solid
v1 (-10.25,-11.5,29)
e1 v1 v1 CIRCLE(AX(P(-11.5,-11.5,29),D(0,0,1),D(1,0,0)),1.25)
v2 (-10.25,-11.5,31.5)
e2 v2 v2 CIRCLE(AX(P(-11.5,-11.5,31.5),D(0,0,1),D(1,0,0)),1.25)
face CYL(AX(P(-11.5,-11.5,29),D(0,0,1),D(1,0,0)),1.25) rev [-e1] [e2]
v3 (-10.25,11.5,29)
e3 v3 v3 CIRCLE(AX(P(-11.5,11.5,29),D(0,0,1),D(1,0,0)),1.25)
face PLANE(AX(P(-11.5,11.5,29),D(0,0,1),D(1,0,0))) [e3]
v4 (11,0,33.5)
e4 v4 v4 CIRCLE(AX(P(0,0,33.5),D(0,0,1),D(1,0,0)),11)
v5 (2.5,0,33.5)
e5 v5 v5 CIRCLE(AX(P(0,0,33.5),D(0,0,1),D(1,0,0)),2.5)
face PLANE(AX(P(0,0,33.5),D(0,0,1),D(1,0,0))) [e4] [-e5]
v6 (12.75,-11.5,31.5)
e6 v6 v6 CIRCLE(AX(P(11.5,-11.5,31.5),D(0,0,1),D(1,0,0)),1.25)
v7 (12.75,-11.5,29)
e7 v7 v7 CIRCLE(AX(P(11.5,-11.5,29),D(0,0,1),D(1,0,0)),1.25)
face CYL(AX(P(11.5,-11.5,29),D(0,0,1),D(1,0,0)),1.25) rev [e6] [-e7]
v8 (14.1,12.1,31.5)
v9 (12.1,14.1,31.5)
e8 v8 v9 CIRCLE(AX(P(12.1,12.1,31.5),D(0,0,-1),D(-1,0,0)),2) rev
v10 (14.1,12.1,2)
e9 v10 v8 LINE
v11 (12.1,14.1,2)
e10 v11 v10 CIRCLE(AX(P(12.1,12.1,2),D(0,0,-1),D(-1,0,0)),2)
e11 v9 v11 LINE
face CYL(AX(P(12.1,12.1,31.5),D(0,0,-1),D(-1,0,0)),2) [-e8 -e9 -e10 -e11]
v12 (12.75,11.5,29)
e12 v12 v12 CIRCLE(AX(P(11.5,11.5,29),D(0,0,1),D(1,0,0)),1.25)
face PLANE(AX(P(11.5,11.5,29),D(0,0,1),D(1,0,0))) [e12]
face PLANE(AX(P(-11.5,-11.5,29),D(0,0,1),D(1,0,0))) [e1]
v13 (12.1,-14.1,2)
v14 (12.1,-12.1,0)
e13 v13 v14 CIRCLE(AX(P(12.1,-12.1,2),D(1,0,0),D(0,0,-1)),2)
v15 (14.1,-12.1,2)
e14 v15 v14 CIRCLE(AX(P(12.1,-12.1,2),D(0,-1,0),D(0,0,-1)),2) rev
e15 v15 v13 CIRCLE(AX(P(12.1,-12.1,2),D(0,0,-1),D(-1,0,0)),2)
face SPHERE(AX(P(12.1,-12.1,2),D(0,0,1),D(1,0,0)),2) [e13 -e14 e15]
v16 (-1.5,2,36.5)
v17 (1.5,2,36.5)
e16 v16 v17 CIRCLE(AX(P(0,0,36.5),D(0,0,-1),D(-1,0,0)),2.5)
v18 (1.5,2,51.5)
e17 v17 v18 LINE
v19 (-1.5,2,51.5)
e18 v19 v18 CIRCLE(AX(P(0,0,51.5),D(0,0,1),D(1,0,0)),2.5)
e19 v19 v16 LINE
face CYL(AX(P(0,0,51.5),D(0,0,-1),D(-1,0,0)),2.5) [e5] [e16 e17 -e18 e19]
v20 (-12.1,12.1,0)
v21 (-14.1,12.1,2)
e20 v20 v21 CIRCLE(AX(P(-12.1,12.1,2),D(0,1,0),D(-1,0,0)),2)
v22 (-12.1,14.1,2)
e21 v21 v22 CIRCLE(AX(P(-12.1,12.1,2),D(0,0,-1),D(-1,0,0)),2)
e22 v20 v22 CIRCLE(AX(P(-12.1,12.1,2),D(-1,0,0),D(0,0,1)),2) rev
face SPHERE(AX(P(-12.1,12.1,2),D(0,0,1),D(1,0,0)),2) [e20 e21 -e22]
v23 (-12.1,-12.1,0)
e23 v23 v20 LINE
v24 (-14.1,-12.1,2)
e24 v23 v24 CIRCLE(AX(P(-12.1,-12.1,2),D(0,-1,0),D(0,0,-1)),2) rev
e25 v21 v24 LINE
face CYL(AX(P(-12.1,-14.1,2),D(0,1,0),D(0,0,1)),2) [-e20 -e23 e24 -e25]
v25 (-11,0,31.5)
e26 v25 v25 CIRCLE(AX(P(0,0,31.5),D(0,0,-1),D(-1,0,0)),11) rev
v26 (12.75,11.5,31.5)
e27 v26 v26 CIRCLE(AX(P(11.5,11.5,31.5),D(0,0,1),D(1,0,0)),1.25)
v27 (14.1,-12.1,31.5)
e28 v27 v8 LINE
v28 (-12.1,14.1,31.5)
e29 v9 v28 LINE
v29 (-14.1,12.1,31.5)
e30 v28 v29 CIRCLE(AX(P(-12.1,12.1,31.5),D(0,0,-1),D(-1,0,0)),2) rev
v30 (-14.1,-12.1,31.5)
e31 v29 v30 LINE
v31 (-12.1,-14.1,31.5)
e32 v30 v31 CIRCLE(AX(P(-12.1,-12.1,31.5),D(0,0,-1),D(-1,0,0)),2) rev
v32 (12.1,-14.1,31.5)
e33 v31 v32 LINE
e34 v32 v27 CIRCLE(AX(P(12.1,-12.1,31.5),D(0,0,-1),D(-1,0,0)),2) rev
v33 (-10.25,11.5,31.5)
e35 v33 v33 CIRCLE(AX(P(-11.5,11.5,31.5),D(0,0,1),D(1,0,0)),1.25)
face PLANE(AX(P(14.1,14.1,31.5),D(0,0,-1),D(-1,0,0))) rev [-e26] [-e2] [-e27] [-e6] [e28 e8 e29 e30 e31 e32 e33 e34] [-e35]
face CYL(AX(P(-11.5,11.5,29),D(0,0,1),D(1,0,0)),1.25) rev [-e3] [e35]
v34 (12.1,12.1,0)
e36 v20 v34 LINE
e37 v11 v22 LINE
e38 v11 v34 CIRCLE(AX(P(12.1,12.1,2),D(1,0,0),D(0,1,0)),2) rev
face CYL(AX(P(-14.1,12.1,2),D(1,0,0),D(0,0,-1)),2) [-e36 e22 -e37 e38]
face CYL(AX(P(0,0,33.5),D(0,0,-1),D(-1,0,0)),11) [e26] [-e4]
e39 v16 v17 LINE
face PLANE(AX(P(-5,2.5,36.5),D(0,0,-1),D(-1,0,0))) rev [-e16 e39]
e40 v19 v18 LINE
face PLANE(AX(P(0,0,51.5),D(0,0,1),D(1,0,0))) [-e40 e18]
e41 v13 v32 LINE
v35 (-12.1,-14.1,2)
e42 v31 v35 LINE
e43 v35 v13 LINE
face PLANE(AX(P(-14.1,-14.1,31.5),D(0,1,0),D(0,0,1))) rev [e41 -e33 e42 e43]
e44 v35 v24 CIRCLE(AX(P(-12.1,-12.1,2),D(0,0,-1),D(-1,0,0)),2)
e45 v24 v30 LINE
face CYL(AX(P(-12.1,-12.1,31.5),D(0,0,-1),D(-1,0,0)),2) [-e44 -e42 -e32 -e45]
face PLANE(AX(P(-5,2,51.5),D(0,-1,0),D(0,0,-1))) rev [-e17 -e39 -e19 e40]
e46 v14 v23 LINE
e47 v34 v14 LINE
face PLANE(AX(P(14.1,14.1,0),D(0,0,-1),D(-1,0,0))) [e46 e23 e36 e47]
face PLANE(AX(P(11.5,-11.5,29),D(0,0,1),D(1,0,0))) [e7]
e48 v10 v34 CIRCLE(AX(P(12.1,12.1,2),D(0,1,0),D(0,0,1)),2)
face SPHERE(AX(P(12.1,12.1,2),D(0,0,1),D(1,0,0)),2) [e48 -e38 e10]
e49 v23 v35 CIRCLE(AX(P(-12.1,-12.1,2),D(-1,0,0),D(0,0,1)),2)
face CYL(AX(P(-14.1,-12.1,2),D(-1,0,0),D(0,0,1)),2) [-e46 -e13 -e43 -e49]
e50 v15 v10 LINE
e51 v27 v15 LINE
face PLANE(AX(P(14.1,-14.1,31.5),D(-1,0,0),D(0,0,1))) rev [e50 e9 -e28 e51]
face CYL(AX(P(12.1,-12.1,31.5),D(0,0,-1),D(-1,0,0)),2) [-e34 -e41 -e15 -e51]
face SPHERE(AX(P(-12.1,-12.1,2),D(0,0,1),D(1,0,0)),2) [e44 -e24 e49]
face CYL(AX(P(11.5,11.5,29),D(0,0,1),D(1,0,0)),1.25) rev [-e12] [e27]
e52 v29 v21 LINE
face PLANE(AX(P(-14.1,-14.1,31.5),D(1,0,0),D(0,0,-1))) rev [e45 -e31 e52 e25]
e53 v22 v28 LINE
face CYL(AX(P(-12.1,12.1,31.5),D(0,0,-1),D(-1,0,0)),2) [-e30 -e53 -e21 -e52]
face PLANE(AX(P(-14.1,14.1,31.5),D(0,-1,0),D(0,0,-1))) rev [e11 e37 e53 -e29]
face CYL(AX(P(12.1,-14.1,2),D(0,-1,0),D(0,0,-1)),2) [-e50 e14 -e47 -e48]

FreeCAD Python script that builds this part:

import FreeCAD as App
import Part
import Sketcher

V = App.Vector
Q = App.Units.Quantity


def edges_at(feature, points):
    """Names of the edges that pass closest to the given points."""
    edges = feature.Shape.Edges
    near = lambda p: min(range(len(edges)), key=lambda i: edges[i].distToShape(Part.Vertex(*p))[0])
    return sorted({f"Edge{near(p) + 1}" for p in points})


def add_polygon(sketch, points):
    """Adds a closed chain of lines whose ends are joined by coincident constraints."""
    first, n = sketch.GeometryCount, len(points)
    for a, b in zip(points, points[1:] + points[:1]):
        sketch.addGeometry(Part.LineSegment(App.Vector(*a, 0), App.Vector(*b, 0)), False)
    for i in range(n):
        sketch.addConstraint(Sketcher.Constraint("Coincident", first + i, 2, first + (i + 1) % n, 1))

doc = App.newDocument("Part")
body = doc.addObject("PartDesign::Body", "Body")

# Sketch on XY plane
sketch1 = body.newObject("Sketcher::SketchObject", "Sketch")
sketch1.AttachmentSupport = (doc.getObject("XY_Plane"), [""])
sketch1.MapMode = "FlatFace"
add_polygon(sketch1, [(-14.1, 14.1), (-14.1, -14.1), (14.1, -14.1), (14.1, 14.1)])  # lines 0-3
sketch1.addConstraint(Sketcher.Constraint("Vertical", 0))
sketch1.addConstraint(Sketcher.Constraint("Horizontal", 1))
sketch1.addConstraint(Sketcher.Constraint("Vertical", 2))
sketch1.addConstraint(Sketcher.Constraint("Horizontal", 3))
sketch1.addConstraint(Sketcher.Constraint("Symmetric", 0, 2, 2, 2, -1, 1))
sketch1.addConstraint(Sketcher.Constraint("Equal", 3, 0))
sketch1.addConstraint(Sketcher.Constraint("DistanceX", 1, 1, 1, 2, Q("28.2 mm")))
pad1 = body.newObject("PartDesign::Pad", "Pad")
pad1.Profile = sketch1
pad1.Length = 31.5

# Sketch on XY plane
sketch2 = body.newObject("Sketcher::SketchObject", "Sketch001")
sketch2.AttachmentSupport = (doc.getObject("XY_Plane"), [""])
sketch2.MapMode = "FlatFace"
sketch2.AttachmentOffset = App.Placement(V(0, 0, 31.5), App.Rotation())
sketch2.addGeometry(Part.Circle(V(0, 0, 0), V(0, 0, 1), 11), False)
sketch2.addConstraint(Sketcher.Constraint("Coincident", 0, 3, -1, 1))
sketch2.addConstraint(Sketcher.Constraint("Diameter", 0, Q("22 mm")))
pad2 = body.newObject("PartDesign::Pad", "Pad001")
pad2.Profile = sketch2
pad2.Length = 2

# Sketch on XY plane
sketch3 = body.newObject("Sketcher::SketchObject", "Sketch002")
sketch3.AttachmentSupport = (doc.getObject("XY_Plane"), [""])
sketch3.MapMode = "FlatFace"
sketch3.AttachmentOffset = App.Placement(V(0, 0, 33.5), App.Rotation())
sketch3.addGeometry(Part.Circle(V(0, 0, 0), V(0, 0, 1), 2.5), False)
sketch3.addConstraint(Sketcher.Constraint("Coincident", 0, 3, -1, 1))
sketch3.addConstraint(Sketcher.Constraint("Diameter", 0, Q("5 mm")))
pad3 = body.newObject("PartDesign::Pad", "Pad002")
pad3.Profile = sketch3
pad3.Length = 18

# Sketch on YZ plane
sketch4 = body.newObject("Sketcher::SketchObject", "Sketch003")
sketch4.AttachmentSupport = (doc.getObject("YZ_Plane"), [""])
sketch4.MapMode = "FlatFace"
add_polygon(sketch4, [(2.5, 51.5), (2, 51.5), (2, 36.5), (2.5, 36.5)])  # lines 0-3
sketch4.addConstraint(Sketcher.Constraint("Horizontal", 0))
sketch4.addConstraint(Sketcher.Constraint("Vertical", 1))
sketch4.addConstraint(Sketcher.Constraint("Horizontal", 2))
sketch4.addConstraint(Sketcher.Constraint("Vertical", 3))
sketch4.addConstraint(Sketcher.Constraint("DistanceY", 1, 2, 1, 1, Q("15 mm")))
sketch4.addConstraint(Sketcher.Constraint("DistanceX", 0, 2, 0, 1, Q("0.5 mm")))
sketch4.addConstraint(Sketcher.Constraint("DistanceX", -1, 1, 0, 2, Q("2 mm")))
sketch4.addConstraint(Sketcher.Constraint("DistanceY", -1, 1, 0, 2, Q("51.5 mm")))
pocket1 = body.newObject("PartDesign::Pocket", "Pocket")
pocket1.Profile = sketch4
pocket1.Length = 10
pocket1.Midplane = True

# Sketch on XY plane
sketch5 = body.newObject("Sketcher::SketchObject", "Sketch004")
sketch5.AttachmentSupport = (doc.getObject("XY_Plane"), [""])
sketch5.MapMode = "FlatFace"
sketch5.AttachmentOffset = App.Placement(V(0, 0, 31.5), App.Rotation())
sketch5.addGeometry(Part.Circle(V(-11.5, 11.5, 0), V(0, 0, 1), 1.25), False)
sketch5.addGeometry(Part.Circle(V(11.5, 11.5, 0), V(0, 0, 1), 1.25), False)
sketch5.addGeometry(Part.Circle(V(11.5, -11.5, 0), V(0, 0, 1), 1.25), False)
sketch5.addGeometry(Part.Circle(V(-11.5, -11.5, 0), V(0, 0, 1), 1.25), False)
sketch5.addConstraint(Sketcher.Constraint("Equal", 0, 1))
sketch5.addConstraint(Sketcher.Constraint("Equal", 1, 2))
sketch5.addConstraint(Sketcher.Constraint("Equal", 2, 3))
sketch5.addConstraint(Sketcher.Constraint("Symmetric", 0, 3, 2, 3, -1, 1))
sketch5.addConstraint(Sketcher.Constraint("Symmetric", 1, 3, 3, 3, -1, 1))
sketch5.addConstraint(Sketcher.Constraint("Symmetric", 0, 3, 1, 3, -2))
sketch5.addConstraint(Sketcher.Constraint("Diameter", 0, Q("2.5 mm")))
sketch5.addConstraint(Sketcher.Constraint("DistanceX", 0, 3, 1, 3, Q("23 mm")))
sketch5.addConstraint(Sketcher.Constraint("DistanceY", 2, 3, 1, 3, Q("23 mm")))
pocket2 = body.newObject("PartDesign::Pocket", "Pocket001")
pocket2.Profile = sketch5
pocket2.Length = 2.5
doc.recompute()

fillet = body.newObject("PartDesign::Fillet", "Fillet")
fillet.Base = (pocket2, edges_at(pocket2, [
    (0, -14.1, 0),
    (-14.1, 0, 0),
    (0, 14.1, 0),
    (14.1, 0, 0),
    (14.1, -14.1, 15.75),
    (-14.1, -14.1, 15.75),
    (-14.1, 14.1, 15.75),
    (14.1, 14.1, 15.75),
]))
fillet.Radius = 2

doc.recompute()
